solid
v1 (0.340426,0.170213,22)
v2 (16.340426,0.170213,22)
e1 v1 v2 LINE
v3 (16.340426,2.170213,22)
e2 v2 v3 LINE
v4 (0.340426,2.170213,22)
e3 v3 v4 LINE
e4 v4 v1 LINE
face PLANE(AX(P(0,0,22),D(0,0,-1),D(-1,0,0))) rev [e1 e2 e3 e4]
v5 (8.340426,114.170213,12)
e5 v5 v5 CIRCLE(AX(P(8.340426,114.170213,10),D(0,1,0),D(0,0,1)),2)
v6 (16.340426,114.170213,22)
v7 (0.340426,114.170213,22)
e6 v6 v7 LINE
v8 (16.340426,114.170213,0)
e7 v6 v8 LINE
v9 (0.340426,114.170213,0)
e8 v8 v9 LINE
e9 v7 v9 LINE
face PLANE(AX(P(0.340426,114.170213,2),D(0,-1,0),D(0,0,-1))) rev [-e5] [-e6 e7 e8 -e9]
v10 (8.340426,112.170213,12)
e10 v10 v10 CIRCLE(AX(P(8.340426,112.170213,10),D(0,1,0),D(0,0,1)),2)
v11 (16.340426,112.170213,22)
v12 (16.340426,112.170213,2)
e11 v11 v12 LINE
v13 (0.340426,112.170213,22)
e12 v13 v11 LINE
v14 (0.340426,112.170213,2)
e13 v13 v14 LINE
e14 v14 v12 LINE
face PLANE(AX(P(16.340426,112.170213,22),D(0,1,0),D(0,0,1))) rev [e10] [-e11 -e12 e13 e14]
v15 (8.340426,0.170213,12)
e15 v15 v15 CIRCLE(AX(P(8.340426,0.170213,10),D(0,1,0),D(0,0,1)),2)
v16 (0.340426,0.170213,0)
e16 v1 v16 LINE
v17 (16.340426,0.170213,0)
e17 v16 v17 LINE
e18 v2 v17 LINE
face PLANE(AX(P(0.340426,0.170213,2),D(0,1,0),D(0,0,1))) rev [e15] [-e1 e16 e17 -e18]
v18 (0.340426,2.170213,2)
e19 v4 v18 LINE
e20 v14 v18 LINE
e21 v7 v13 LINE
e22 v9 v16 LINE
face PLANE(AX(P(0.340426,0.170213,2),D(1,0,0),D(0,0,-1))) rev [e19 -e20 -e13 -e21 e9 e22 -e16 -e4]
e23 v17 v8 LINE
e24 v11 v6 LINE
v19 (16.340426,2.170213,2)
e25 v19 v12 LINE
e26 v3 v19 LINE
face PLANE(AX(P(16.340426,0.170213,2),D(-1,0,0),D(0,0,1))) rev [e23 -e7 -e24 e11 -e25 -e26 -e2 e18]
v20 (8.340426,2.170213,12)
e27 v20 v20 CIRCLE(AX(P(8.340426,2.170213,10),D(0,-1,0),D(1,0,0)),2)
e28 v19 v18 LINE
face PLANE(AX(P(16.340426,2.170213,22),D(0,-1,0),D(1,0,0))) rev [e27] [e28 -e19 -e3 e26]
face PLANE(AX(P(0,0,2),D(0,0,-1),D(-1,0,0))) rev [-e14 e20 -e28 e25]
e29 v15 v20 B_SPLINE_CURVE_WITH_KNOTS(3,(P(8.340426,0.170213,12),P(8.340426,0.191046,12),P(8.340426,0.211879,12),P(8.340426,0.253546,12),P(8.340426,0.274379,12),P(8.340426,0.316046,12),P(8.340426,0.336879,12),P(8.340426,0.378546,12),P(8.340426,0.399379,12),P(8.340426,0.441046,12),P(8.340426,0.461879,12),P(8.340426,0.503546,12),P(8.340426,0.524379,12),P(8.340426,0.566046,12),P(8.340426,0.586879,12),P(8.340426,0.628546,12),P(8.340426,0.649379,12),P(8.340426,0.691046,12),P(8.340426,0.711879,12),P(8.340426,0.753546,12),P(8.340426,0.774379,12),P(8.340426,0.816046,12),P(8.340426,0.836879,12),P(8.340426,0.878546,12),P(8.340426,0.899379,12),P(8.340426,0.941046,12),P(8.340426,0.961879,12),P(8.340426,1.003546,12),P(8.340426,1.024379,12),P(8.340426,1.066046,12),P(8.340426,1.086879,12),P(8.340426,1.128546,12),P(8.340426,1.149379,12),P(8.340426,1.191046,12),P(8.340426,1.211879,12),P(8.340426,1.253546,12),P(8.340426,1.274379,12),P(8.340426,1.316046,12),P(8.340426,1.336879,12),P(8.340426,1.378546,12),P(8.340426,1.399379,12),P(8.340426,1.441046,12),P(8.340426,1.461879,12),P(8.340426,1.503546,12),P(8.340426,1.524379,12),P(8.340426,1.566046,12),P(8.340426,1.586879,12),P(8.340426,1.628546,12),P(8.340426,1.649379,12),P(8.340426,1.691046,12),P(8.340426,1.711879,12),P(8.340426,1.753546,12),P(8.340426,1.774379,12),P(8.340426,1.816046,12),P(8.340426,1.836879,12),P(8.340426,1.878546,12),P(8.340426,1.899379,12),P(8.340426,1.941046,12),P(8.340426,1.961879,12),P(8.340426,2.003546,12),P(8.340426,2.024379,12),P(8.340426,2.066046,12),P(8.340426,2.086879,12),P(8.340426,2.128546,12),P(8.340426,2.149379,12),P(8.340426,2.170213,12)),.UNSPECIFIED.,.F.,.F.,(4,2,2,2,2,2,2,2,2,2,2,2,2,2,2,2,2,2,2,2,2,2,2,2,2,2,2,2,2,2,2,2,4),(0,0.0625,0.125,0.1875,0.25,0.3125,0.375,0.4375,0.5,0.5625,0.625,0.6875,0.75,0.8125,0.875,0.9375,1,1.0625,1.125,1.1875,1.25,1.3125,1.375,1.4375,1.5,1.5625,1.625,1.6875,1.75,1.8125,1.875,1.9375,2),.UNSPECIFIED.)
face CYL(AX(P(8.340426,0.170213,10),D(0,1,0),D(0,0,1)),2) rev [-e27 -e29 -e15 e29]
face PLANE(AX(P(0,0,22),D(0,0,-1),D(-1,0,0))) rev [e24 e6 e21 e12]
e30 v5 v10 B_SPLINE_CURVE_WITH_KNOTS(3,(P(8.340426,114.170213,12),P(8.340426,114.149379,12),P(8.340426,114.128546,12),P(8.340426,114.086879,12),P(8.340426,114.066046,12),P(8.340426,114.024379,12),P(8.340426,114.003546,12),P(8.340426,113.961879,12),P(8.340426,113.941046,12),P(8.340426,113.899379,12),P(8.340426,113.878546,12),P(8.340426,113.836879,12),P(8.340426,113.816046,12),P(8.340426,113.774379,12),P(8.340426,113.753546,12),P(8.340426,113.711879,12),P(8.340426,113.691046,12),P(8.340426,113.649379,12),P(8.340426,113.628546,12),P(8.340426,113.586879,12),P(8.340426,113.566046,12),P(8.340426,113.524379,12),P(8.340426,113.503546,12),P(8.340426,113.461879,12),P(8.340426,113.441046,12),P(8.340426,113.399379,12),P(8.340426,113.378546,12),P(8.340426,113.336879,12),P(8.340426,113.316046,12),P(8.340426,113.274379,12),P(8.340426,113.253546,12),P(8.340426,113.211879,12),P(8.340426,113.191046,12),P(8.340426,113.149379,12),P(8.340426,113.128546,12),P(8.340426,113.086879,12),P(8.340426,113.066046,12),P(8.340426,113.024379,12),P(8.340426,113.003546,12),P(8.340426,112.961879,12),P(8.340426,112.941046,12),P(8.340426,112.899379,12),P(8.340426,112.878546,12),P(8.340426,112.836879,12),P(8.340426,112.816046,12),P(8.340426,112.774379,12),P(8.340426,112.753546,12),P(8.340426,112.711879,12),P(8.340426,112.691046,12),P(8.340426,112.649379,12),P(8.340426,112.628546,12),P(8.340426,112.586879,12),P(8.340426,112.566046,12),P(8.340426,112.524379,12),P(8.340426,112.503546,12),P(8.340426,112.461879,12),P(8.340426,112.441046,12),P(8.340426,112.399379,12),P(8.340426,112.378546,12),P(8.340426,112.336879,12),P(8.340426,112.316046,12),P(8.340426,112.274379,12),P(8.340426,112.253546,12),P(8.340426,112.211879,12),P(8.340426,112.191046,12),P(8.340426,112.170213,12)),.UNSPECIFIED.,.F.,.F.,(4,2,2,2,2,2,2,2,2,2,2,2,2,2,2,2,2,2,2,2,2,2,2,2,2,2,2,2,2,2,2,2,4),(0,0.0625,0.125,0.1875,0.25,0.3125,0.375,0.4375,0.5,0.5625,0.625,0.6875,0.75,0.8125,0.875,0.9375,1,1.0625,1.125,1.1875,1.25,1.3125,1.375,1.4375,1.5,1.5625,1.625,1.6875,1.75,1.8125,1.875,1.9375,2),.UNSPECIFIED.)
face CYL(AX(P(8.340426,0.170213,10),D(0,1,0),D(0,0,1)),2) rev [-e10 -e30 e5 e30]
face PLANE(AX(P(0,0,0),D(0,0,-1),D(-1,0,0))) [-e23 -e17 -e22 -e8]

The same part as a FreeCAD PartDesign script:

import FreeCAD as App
import Part
import Sketcher

V = App.Vector


def add_polygon(sketch, points):
    """Adds a closed chain of lines whose ends are joined by coincident constraints."""
    first, n = sketch.GeometryCount, len(points)
    for a, b in zip(points, points[1:] + points[:1]):
        sketch.addGeometry(Part.LineSegment(App.Vector(*a, 0), App.Vector(*b, 0)), False)
    for i in range(n):
        sketch.addConstraint(Sketcher.Constraint("Coincident", first + i, 2, first + (i + 1) % n, 1))

doc = App.newDocument("Part")
body = doc.addObject("PartDesign::Body", "Body")

# Sketch on XY plane
sketch1 = body.newObject("Sketcher::SketchObject", "Sketch")
sketch1.AttachmentSupport = (doc.getObject("XY_Plane"), [""])
sketch1.MapMode = "FlatFace"
add_polygon(sketch1, [(0, 114), (0, 0), (16, 0), (16, 114)])  # lines 0-3
sketch1.addConstraint(Sketcher.Constraint("Vertical", 0))
sketch1.addConstraint(Sketcher.Constraint("Horizontal", 1))
sketch1.addConstraint(Sketcher.Constraint("Vertical", 2))
sketch1.addConstraint(Sketcher.Constraint("Horizontal", 3))
sketch1.addConstraint(Sketcher.Constraint("DistanceX", 1, 1, 1, 2, 16.0))
sketch1.addConstraint(Sketcher.Constraint("DistanceY", 0, 2, 0, 1, 114.0))
sketch1.addConstraint(Sketcher.Constraint("DistanceX", -1, 1, 0, 2, 0.340426))
sketch1.addConstraint(Sketcher.Constraint("DistanceY", -1, 1, 0, 2, 0.170213))
pad1 = body.newObject("PartDesign::Pad", "Pad")
pad1.Profile = sketch1
pad1.Length = 2

# Sketch on XY plane
sketch2 = body.newObject("Sketcher::SketchObject", "Sketch001")
sketch2.AttachmentSupport = (doc.getObject("XY_Plane"), [""])
sketch2.MapMode = "FlatFace"
sketch2.AttachmentOffset = App.Placement(V(0, 0, 2), App.Rotation())
add_polygon(sketch2, [(0.3, 114.2), (0.3, 112.2), (16.3, 112.2), (16.3, 114.2)])  # lines 0-3
sketch2.addConstraint(Sketcher.Constraint("Vertical", 0))
sketch2.addConstraint(Sketcher.Constraint("Horizontal", 1))
sketch2.addConstraint(Sketcher.Constraint("Vertical", 2))
sketch2.addConstraint(Sketcher.Constraint("Horizontal", 3))
sketch2.addConstraint(Sketcher.Constraint("DistanceX", 1, 1, 1, 2, 16.0))
sketch2.addConstraint(Sketcher.Constraint("DistanceY", 0, 2, 0, 1, 2.0))
sketch2.addConstraint(Sketcher.Constraint("DistanceX", -1, 1, 0, 2, 0.340426))
sketch2.addConstraint(Sketcher.Constraint("DistanceY", -1, 1, 0, 2, 112.170213))
pad2 = body.newObject("PartDesign::Pad", "Pad001")
pad2.Profile = sketch2
pad2.Length = 20

# Sketch on XY plane
sketch3 = body.newObject("Sketcher::SketchObject", "Sketch002")
sketch3.AttachmentSupport = (doc.getObject("XY_Plane"), [""])
sketch3.MapMode = "FlatFace"
sketch3.AttachmentOffset = App.Placement(V(0, 0, 2), App.Rotation())
add_polygon(sketch3, [(0.3, 2.2), (0.3, 0.2), (16.3, 0.2), (16.3, 2.2)])  # lines 0-3
sketch3.addConstraint(Sketcher.Constraint("Vertical", 0))
sketch3.addConstraint(Sketcher.Constraint("Horizontal", 1))
sketch3.addConstraint(Sketcher.Constraint("Vertical", 2))
sketch3.addConstraint(Sketcher.Constraint("Horizontal", 3))
sketch3.addConstraint(Sketcher.Constraint("DistanceX", 1, 1, 1, 2, 16.0))
sketch3.addConstraint(Sketcher.Constraint("DistanceY", 0, 2, 0, 1, 2.0))
sketch3.addConstraint(Sketcher.Constraint("DistanceX", -1, 1, 0, 2, 0.340426))
sketch3.addConstraint(Sketcher.Constraint("DistanceY", -1, 1, 0, 2, 0.170213))
pad3 = body.newObject("PartDesign::Pad", "Pad002")
pad3.Profile = sketch3
pad3.Length = 20

# Sketch on XZ plane
sketch4 = body.newObject("Sketcher::SketchObject", "Sketch003")
sketch4.AttachmentSupport = (doc.getObject("XZ_Plane"), [""])
sketch4.MapMode = "FlatFace"
sketch4.AttachmentOffset = App.Placement(V(0, 0, -114.170213), App.Rotation())
sketch4.addGeometry(Part.Circle(V(8.3, 10, 0), V(0, 0, 1), 2), False)
sketch4.addConstraint(Sketcher.Constraint("Diameter", 0, 4.0))
sketch4.addConstraint(Sketcher.Constraint("DistanceY", -1, 1, 0, 3, 10.0))
sketch4.addConstraint(Sketcher.Constraint("DistanceX", -1, 1, 0, 3, 8.340426))
pocket1 = body.newObject("PartDesign::Pocket", "Pocket")
pocket1.Profile = sketch4
pocket1.Type = "ThroughAll"
pocket1.Reversed = True

doc.recompute()
